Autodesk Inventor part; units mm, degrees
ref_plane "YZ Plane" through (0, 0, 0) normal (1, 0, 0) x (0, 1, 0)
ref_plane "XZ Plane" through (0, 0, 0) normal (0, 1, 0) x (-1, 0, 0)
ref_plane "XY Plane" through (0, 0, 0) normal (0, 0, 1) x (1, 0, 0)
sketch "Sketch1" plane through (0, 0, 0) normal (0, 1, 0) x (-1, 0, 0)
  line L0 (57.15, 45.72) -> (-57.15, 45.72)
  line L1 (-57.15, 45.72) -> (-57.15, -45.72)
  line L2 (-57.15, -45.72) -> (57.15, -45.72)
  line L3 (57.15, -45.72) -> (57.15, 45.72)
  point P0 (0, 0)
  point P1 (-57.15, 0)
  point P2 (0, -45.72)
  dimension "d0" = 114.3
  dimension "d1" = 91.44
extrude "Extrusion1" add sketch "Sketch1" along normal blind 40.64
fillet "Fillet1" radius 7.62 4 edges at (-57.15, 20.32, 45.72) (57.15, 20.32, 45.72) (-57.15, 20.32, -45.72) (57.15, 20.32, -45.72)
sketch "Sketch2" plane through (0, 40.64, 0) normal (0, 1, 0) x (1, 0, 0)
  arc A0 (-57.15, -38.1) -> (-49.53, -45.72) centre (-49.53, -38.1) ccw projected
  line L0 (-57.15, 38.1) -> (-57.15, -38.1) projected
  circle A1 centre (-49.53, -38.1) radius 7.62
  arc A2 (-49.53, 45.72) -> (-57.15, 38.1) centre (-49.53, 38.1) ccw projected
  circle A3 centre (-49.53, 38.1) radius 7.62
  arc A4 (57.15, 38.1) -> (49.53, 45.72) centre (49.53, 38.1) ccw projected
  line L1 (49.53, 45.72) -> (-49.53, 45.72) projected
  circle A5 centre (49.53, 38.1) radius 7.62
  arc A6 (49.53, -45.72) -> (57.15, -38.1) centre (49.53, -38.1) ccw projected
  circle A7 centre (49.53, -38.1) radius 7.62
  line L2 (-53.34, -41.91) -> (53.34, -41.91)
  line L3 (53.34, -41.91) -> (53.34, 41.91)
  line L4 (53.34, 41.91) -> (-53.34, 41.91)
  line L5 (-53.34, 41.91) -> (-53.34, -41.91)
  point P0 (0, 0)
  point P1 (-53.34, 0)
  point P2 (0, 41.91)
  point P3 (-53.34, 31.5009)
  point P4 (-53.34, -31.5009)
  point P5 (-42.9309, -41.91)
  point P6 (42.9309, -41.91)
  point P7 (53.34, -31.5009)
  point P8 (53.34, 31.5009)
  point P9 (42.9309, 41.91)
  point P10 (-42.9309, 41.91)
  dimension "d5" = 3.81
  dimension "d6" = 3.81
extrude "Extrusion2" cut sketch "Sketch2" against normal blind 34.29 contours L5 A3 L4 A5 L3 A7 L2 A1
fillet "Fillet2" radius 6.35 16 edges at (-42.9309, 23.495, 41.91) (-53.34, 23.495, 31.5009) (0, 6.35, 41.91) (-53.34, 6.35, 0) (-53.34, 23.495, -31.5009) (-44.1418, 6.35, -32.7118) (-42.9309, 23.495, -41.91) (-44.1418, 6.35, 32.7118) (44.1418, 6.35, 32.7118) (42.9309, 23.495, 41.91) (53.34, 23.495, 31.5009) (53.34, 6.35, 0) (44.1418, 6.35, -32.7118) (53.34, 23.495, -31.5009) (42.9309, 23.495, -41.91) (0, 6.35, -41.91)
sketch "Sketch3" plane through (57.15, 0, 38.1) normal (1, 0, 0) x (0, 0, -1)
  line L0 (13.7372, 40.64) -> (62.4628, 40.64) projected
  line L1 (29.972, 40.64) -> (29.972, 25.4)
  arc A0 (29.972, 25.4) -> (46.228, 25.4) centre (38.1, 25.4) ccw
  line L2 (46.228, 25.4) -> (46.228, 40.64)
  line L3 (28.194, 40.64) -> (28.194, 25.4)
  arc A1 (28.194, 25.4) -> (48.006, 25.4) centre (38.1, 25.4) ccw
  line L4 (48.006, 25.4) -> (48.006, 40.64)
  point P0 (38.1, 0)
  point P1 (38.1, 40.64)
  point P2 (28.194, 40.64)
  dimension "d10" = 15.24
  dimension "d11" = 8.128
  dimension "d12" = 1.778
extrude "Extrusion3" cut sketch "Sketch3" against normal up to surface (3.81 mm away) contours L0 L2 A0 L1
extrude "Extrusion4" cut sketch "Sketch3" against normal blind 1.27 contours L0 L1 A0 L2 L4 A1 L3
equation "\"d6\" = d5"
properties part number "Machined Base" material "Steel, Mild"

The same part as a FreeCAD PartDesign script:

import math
import FreeCAD as App
import Part
import Sketcher

V = App.Vector
Q = App.Units.Quantity


def edges_at(feature, points):
    """Names of the edges that pass closest to the given points."""
    edges = feature.Shape.Edges
    near = lambda p: min(range(len(edges)), key=lambda i: edges[i].distToShape(Part.Vertex(*p))[0])
    return sorted({f"Edge{near(p) + 1}" for p in points})


def add_polygon(sketch, points):
    """Adds a closed chain of lines whose ends are joined by coincident constraints."""
    first, n = sketch.GeometryCount, len(points)
    for a, b in zip(points, points[1:] + points[:1]):
        sketch.addGeometry(Part.LineSegment(App.Vector(*a, 0), App.Vector(*b, 0)), False)
    for i in range(n):
        sketch.addConstraint(Sketcher.Constraint("Coincident", first + i, 2, first + (i + 1) % n, 1))

doc = App.newDocument("Part")
body = doc.addObject("PartDesign::Body", "Body")

sketch1 = body.newObject("Sketcher::SketchObject", "Sketch")
sketch1.AttachmentSupport = (doc.getObject("XZ_Plane"), [""])
sketch1.MapMode = "FlatFace"
add_polygon(sketch1, [(-57, -46), (-57, 46), (57, 46), (57, -46)])
sketch1.addConstraint(Sketcher.Constraint("Vertical", 0))
sketch1.addConstraint(Sketcher.Constraint("Horizontal", 1))
sketch1.addConstraint(Sketcher.Constraint("Vertical", 2))
sketch1.addConstraint(Sketcher.Constraint("Horizontal", 3))
sketch1.addConstraint(Sketcher.Constraint("Symmetric", 0, 2, 2, 2, -1, 1))
sketch1.addConstraint(Sketcher.Constraint("DistanceX", 1, 1, 1, 2, Q("4.5 in")))
sketch1.addConstraint(Sketcher.Constraint("DistanceY", 0, 1, 0, 2, Q("3.6 in")))
pad1 = body.newObject("PartDesign::Pad", "Pad")
pad1.Profile = sketch1
pad1.Length = Q("1.6 in")
pad1.Reversed = True
doc.recompute()

fillet = body.newObject("PartDesign::Fillet", "Fillet")
fillet.Base = (pad1, edges_at(pad1, [
    (-57.15, 20.32, 45.72),
    (57.15, 20.32, 45.72),
    (-57.15, 20.32, -45.72),
    (57.15, 20.32, -45.72),
]))
fillet.Radius = Q("0.3 in")

sketch2 = body.newObject("Sketcher::SketchObject", "Sketch001")
sketch2.AttachmentSupport = (doc.getObject("XZ_Plane"), [""])
sketch2.MapMode = "FlatFace"
sketch2.AttachmentOffset = App.Placement(V(0, 0, -1.6 * 25.4), App.Rotation())
sketch2.addGeometry(Part.LineSegment(V(-53, -32, 0), V(-53, 32, 0)), False)
sketch2.addGeometry(Part.ArcOfCircle(Part.Circle(V(-50, 38, 0), V(0, 0, 1), 8), math.radians(-120), math.radians(30)), False)
sketch2.addGeometry(Part.LineSegment(V(-43, 42, 0), V(43, 42, 0)), False)
sketch2.addGeometry(Part.ArcOfCircle(Part.Circle(V(50, 38, 0), V(0, 0, 1), 8), math.radians(150), math.radians(300)), False)
sketch2.addGeometry(Part.LineSegment(V(53, 32, 0), V(53, -32, 0)), False)
sketch2.addGeometry(Part.ArcOfCircle(Part.Circle(V(50, -38, 0), V(0, 0, 1), 8), math.radians(60), math.radians(210)), False)
sketch2.addGeometry(Part.LineSegment(V(43, -42, 0), V(-43, -42, 0)), False)
sketch2.addGeometry(Part.ArcOfCircle(Part.Circle(V(-50, -38, 0), V(0, 0, 1), 8), math.radians(-30), math.radians(120)), False)
sketch2.addConstraint(Sketcher.Constraint("Coincident", 0, 2, 1, 1))
sketch2.addConstraint(Sketcher.Constraint("Coincident", 1, 2, 2, 1))
sketch2.addConstraint(Sketcher.Constraint("Coincident", 2, 2, 3, 1))
sketch2.addConstraint(Sketcher.Constraint("Coincident", 3, 2, 4, 1))
sketch2.addConstraint(Sketcher.Constraint("Coincident", 4, 2, 5, 1))
sketch2.addConstraint(Sketcher.Constraint("Coincident", 5, 2, 6, 1))
sketch2.addConstraint(Sketcher.Constraint("Coincident", 6, 2, 7, 1))
sketch2.addConstraint(Sketcher.Constraint("Coincident", 7, 2, 0, 1))
sketch2.addConstraint(Sketcher.Constraint("Vertical", 0))
sketch2.addConstraint(Sketcher.Constraint("Horizontal", 2))
sketch2.addConstraint(Sketcher.Constraint("Vertical", 4))
sketch2.addConstraint(Sketcher.Constraint("Horizontal", 6))
sketch2.addConstraint(Sketcher.Constraint("Equal", 1, 3))
sketch2.addConstraint(Sketcher.Constraint("Equal", 3, 5))
sketch2.addConstraint(Sketcher.Constraint("Equal", 5, 7))
sketch2.addConstraint(Sketcher.Constraint("Symmetric", 1, 3, 5, 3, -1, 1))
sketch2.addConstraint(Sketcher.Constraint("Symmetric", 3, 3, 7, 3, -1, 1))
sketch2.addConstraint(Sketcher.Constraint("Symmetric", 1, 3, 3, 3, -2))
sketch2.addConstraint(Sketcher.Constraint("Horizontal", 0, 2, 3, 2))
sketch2.addConstraint(Sketcher.Constraint("Vertical", 2, 2, 5, 2))
sketch2.addConstraint(Sketcher.Constraint("Radius", 1, Q("0.3 in")))
sketch2.addConstraint(Sketcher.Constraint("DistanceX", 0, 2, 1, 3, Q("0.15 in")))
sketch2.addConstraint(Sketcher.Constraint("DistanceY", 1, 3, 1, 2, Q("0.15 in")))
sketch2.addConstraint(Sketcher.Constraint("DistanceY", 5, 3, 3, 3, Q("3 in")))
sketch2.addConstraint(Sketcher.Constraint("DistanceX", 0, 2, -1, 1, Q("2.1 in")))
pocket1 = body.newObject("PartDesign::Pocket", "Pocket")
pocket1.Profile = sketch2
pocket1.Length = Q("1.35 in")
pocket1.Reversed = True
doc.recompute()

fillet2 = body.newObject("PartDesign::Fillet", "Fillet001")
fillet2.Base = (pocket1, edges_at(pocket1, [
    (-42.931, 23.495, 41.91),
    (-53.34, 23.495, 31.501),
    (0, 6.35, 41.91),
    (-53.34, 6.35, 0),
    (-53.34, 23.495, -31.501),
    (-44.142, 6.35, -32.712),
    (-42.931, 23.495, -41.91),
    (-44.142, 6.35, 32.712),
    (44.142, 6.35, 32.712),
    (42.931, 23.495, 41.91),
    (53.34, 23.495, 31.501),
    (53.34, 6.35, 0),
    (44.142, 6.35, -32.712),
    (53.34, 23.495, -31.501),
    (42.931, 23.495, -41.91),
    (0, 6.35, -41.91),
]))
fillet2.Radius = Q("0.25 in")

sketch3 = body.newObject("Sketcher::SketchObject", "Sketch002")
sketch3.AttachmentSupport = (doc.getObject("YZ_Plane"), [""])
sketch3.MapMode = "FlatFace"
sketch3.AttachmentOffset = App.Placement(V(0, 0, 2.25 * 25.4), App.Rotation())
sketch3.addGeometry(Part.LineSegment(V(41, -8, 0), V(41, 8, 0)), False)
sketch3.addGeometry(Part.LineSegment(V(41, 8, 0), V(25, 8, 0)), False)
sketch3.addGeometry(Part.ArcOfCircle(Part.Circle(V(25, 0, 0), V(0, 0, 1), 8), math.radians(90), math.radians(270)), False)
sketch3.addGeometry(Part.LineSegment(V(25, -8, 0), V(41, -8, 0)), False)
sketch3.addConstraint(Sketcher.Constraint("Coincident", 0, 2, 1, 1))
sketch3.addConstraint(Sketcher.Constraint("Tangent", 1, 2, 2, 1))
sketch3.addConstraint(Sketcher.Constraint("Tangent", 2, 2, 3, 1))
sketch3.addConstraint(Sketcher.Constraint("Coincident", 3, 2, 0, 1))
sketch3.addConstraint(Sketcher.Constraint("Vertical", 0))
sketch3.addConstraint(Sketcher.Constraint("Horizontal", 1))
sketch3.addConstraint(Sketcher.Constraint("Horizontal", 3))
sketch3.addConstraint(Sketcher.Constraint("PointOnObject", 2, 3, -1))
sketch3.addConstraint(Sketcher.Constraint("Radius", 2, Q("0.32 in")))
sketch3.addConstraint(Sketcher.Constraint("DistanceX", 1, 2, 1, 1, Q("0.6 in")))
sketch3.addConstraint(Sketcher.Constraint("DistanceX", -1, 1, 2, 3, Q("1 in")))
pocket2 = body.newObject("PartDesign::Pocket", "Pocket001")
pocket2.Profile = sketch3
pocket2.Length = Q("0.15 in")

sketch4 = body.newObject("Sketcher::SketchObject", "Sketch003")
sketch4.AttachmentSupport = (doc.getObject("YZ_Plane"), [""])
sketch4.MapMode = "FlatFace"
sketch4.AttachmentOffset = App.Placement(V(0, 0, 2.25 * 25.4), App.Rotation())
sketch4.addGeometry(Part.LineSegment(V(40.6, 8.1, 0), V(40.6, 9.9, 0)), False)
sketch4.addGeometry(Part.LineSegment(V(40.6, 9.9, 0), V(25.4, 9.9, 0)), False)
sketch4.addGeometry(Part.ArcOfCircle(Part.Circle(V(25.4, 0, 0), V(0, 0, 1), 9.9), math.radians(90), math.radians(270)), False)
sketch4.addGeometry(Part.LineSegment(V(25.4, -9.9, 0), V(40.6, -9.9, 0)), False)
sketch4.addGeometry(Part.LineSegment(V(40.6, -9.9, 0), V(40.6, -8.1, 0)), False)
sketch4.addGeometry(Part.LineSegment(V(40.6, -8.1, 0), V(25.4, -8.1, 0)), False)
sketch4.addGeometry(Part.ArcOfCircle(Part.Circle(V(25.4, 0, 0), V(0, 0, 1), 8.1), math.radians(90), math.radians(270)), False)
sketch4.addGeometry(Part.LineSegment(V(25.4, 8.1, 0), V(40.6, 8.1, 0)), False)
sketch4.addConstraint(Sketcher.Constraint("Coincident", 0, 2, 1, 1))
sketch4.addConstraint(Sketcher.Constraint("Tangent", 1, 2, 2, 1))
sketch4.addConstraint(Sketcher.Constraint("Tangent", 2, 2, 3, 1))
sketch4.addConstraint(Sketcher.Constraint("Coincident", 3, 2, 4, 1))
sketch4.addConstraint(Sketcher.Constraint("Coincident", 4, 2, 5, 1))
sketch4.addConstraint(Sketcher.Constraint("Tangent", 5, 2, 6, 2))
sketch4.addConstraint(Sketcher.Constraint("Tangent", 6, 1, 7, 1))
sketch4.addConstraint(Sketcher.Constraint("Coincident", 7, 2, 0, 1))
sketch4.addConstraint(Sketcher.Constraint("Vertical", 0))
sketch4.addConstraint(Sketcher.Constraint("Horizontal", 1))
sketch4.addConstraint(Sketcher.Constraint("Horizontal", 3))
sketch4.addConstraint(Sketcher.Constraint("Vertical", 4))
sketch4.addConstraint(Sketcher.Constraint("Horizontal", 5))
sketch4.addConstraint(Sketcher.Constraint("Horizontal", 7))
sketch4.addConstraint(Sketcher.Constraint("Coincident", 6, 3, 2, 3))
sketch4.addConstraint(Sketcher.Constraint("Symmetric", 0, 2, 3, 2, -1))
sketch4.addConstraint(Sketcher.Constraint("Radius", 6, Q("0.32 in")))
sketch4.addConstraint(Sketcher.Constraint("DistanceX", 1, 2, 1, 1, Q("0.6 in")))
sketch4.addConstraint(Sketcher.Constraint("DistanceY", 0, 1, 0, 2, Q("0.07 in")))
sketch4.addConstraint(Sketcher.Constraint("DistanceX", -1, 1, 2, 3, Q("1 in")))
pocket3 = body.newObject("PartDesign::Pocket", "Pocket002")
pocket3.Profile = sketch4
pocket3.Length = Q("0.05 in")

doc.recompute()
